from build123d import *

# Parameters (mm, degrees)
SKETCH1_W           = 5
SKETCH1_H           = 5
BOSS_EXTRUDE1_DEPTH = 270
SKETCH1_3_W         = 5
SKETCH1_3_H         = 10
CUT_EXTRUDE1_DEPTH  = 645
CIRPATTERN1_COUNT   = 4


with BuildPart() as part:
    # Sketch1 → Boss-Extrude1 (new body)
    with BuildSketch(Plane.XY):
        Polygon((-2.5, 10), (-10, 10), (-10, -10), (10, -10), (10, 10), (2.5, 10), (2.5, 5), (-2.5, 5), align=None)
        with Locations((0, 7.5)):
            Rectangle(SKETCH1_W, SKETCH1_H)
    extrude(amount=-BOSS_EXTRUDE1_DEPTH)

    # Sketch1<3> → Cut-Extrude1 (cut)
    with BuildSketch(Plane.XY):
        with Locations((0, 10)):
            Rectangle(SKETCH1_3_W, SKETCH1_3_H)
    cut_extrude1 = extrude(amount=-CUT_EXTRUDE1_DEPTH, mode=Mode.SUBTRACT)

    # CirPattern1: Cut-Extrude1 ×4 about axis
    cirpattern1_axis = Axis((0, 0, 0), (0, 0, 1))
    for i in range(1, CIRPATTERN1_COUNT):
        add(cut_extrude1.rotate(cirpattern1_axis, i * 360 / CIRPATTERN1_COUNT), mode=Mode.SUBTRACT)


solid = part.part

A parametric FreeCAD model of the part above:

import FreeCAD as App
import Part
import Sketcher
Q = App.Units.Quantity


def add_polygon(sketch, points):
    """Adds a closed chain of lines whose ends are joined by coincident constraints."""
    first, n = sketch.GeometryCount, len(points)
    for a, b in zip(points, points[1:] + points[:1]):
        sketch.addGeometry(Part.LineSegment(App.Vector(*a, 0), App.Vector(*b, 0)), False)
    for i in range(n):
        sketch.addConstraint(Sketcher.Constraint("Coincident", first + i, 2, first + (i + 1) % n, 1))

doc = App.newDocument("Part")
body = doc.addObject("PartDesign::Body", "Body")

# Sketch on XY plane
sketch1 = body.newObject("Sketcher::SketchObject", "Sketch")
sketch1.AttachmentSupport = (doc.getObject("XY_Plane"), [""])
sketch1.MapMode = "FlatFace"
add_polygon(sketch1, [(-10, 10), (-10, -10), (10, -10), (10, 10)])  # lines 0-3
sketch1.addConstraint(Sketcher.Constraint("Vertical", 0))
sketch1.addConstraint(Sketcher.Constraint("Horizontal", 1))
sketch1.addConstraint(Sketcher.Constraint("Vertical", 2))
sketch1.addConstraint(Sketcher.Constraint("Horizontal", 3))
sketch1.addConstraint(Sketcher.Constraint("Symmetric", 0, 2, 2, 2, -1, 1))
sketch1.addConstraint(Sketcher.Constraint("Equal", 3, 0))
sketch1.addConstraint(Sketcher.Constraint("DistanceX", 1, 1, 1, 2, Q("20 mm")))
pad1 = body.newObject("PartDesign::Pad", "Pad")
pad1.Profile = sketch1
pad1.Length = 270
pad1.Reversed = True

# Sketch on XY plane
sketch2 = body.newObject("Sketcher::SketchObject", "Sketch001")
sketch2.AttachmentSupport = (doc.getObject("XY_Plane"), [""])
sketch2.MapMode = "FlatFace"
add_polygon(sketch2, [(-2, 15), (-2, 5), (2, 5), (2, 15)])  # lines 0-3
sketch2.addConstraint(Sketcher.Constraint("Vertical", 0))
sketch2.addConstraint(Sketcher.Constraint("Horizontal", 1))
sketch2.addConstraint(Sketcher.Constraint("Vertical", 2))
sketch2.addConstraint(Sketcher.Constraint("Horizontal", 3))
sketch2.addConstraint(Sketcher.Constraint("DistanceX", 1, 1, 1, 2, Q("5 mm")))
sketch2.addConstraint(Sketcher.Constraint("DistanceY", 0, 2, 0, 1, Q("10 mm")))
sketch2.addConstraint(Sketcher.Constraint("DistanceY", -1, 1, 0, 2, Q("5 mm")))
sketch2.addConstraint(Sketcher.Constraint("DistanceX", 0, 2, -1, 1, Q("2.5 mm")))
pocket1 = body.newObject("PartDesign::Pocket", "Pocket")
pocket1.Profile = sketch2
pocket1.Length = 645
doc.recompute()

polarpattern = body.newObject("PartDesign::PolarPattern", "PolarPattern")
polarpattern.Originals = [pocket1]
polarpattern.Axis = (doc.getObject("Z_Axis"), [""])
polarpattern.Angle = 360
polarpattern.Occurrences = 4
body.Tip = polarpattern

doc.recompute()
